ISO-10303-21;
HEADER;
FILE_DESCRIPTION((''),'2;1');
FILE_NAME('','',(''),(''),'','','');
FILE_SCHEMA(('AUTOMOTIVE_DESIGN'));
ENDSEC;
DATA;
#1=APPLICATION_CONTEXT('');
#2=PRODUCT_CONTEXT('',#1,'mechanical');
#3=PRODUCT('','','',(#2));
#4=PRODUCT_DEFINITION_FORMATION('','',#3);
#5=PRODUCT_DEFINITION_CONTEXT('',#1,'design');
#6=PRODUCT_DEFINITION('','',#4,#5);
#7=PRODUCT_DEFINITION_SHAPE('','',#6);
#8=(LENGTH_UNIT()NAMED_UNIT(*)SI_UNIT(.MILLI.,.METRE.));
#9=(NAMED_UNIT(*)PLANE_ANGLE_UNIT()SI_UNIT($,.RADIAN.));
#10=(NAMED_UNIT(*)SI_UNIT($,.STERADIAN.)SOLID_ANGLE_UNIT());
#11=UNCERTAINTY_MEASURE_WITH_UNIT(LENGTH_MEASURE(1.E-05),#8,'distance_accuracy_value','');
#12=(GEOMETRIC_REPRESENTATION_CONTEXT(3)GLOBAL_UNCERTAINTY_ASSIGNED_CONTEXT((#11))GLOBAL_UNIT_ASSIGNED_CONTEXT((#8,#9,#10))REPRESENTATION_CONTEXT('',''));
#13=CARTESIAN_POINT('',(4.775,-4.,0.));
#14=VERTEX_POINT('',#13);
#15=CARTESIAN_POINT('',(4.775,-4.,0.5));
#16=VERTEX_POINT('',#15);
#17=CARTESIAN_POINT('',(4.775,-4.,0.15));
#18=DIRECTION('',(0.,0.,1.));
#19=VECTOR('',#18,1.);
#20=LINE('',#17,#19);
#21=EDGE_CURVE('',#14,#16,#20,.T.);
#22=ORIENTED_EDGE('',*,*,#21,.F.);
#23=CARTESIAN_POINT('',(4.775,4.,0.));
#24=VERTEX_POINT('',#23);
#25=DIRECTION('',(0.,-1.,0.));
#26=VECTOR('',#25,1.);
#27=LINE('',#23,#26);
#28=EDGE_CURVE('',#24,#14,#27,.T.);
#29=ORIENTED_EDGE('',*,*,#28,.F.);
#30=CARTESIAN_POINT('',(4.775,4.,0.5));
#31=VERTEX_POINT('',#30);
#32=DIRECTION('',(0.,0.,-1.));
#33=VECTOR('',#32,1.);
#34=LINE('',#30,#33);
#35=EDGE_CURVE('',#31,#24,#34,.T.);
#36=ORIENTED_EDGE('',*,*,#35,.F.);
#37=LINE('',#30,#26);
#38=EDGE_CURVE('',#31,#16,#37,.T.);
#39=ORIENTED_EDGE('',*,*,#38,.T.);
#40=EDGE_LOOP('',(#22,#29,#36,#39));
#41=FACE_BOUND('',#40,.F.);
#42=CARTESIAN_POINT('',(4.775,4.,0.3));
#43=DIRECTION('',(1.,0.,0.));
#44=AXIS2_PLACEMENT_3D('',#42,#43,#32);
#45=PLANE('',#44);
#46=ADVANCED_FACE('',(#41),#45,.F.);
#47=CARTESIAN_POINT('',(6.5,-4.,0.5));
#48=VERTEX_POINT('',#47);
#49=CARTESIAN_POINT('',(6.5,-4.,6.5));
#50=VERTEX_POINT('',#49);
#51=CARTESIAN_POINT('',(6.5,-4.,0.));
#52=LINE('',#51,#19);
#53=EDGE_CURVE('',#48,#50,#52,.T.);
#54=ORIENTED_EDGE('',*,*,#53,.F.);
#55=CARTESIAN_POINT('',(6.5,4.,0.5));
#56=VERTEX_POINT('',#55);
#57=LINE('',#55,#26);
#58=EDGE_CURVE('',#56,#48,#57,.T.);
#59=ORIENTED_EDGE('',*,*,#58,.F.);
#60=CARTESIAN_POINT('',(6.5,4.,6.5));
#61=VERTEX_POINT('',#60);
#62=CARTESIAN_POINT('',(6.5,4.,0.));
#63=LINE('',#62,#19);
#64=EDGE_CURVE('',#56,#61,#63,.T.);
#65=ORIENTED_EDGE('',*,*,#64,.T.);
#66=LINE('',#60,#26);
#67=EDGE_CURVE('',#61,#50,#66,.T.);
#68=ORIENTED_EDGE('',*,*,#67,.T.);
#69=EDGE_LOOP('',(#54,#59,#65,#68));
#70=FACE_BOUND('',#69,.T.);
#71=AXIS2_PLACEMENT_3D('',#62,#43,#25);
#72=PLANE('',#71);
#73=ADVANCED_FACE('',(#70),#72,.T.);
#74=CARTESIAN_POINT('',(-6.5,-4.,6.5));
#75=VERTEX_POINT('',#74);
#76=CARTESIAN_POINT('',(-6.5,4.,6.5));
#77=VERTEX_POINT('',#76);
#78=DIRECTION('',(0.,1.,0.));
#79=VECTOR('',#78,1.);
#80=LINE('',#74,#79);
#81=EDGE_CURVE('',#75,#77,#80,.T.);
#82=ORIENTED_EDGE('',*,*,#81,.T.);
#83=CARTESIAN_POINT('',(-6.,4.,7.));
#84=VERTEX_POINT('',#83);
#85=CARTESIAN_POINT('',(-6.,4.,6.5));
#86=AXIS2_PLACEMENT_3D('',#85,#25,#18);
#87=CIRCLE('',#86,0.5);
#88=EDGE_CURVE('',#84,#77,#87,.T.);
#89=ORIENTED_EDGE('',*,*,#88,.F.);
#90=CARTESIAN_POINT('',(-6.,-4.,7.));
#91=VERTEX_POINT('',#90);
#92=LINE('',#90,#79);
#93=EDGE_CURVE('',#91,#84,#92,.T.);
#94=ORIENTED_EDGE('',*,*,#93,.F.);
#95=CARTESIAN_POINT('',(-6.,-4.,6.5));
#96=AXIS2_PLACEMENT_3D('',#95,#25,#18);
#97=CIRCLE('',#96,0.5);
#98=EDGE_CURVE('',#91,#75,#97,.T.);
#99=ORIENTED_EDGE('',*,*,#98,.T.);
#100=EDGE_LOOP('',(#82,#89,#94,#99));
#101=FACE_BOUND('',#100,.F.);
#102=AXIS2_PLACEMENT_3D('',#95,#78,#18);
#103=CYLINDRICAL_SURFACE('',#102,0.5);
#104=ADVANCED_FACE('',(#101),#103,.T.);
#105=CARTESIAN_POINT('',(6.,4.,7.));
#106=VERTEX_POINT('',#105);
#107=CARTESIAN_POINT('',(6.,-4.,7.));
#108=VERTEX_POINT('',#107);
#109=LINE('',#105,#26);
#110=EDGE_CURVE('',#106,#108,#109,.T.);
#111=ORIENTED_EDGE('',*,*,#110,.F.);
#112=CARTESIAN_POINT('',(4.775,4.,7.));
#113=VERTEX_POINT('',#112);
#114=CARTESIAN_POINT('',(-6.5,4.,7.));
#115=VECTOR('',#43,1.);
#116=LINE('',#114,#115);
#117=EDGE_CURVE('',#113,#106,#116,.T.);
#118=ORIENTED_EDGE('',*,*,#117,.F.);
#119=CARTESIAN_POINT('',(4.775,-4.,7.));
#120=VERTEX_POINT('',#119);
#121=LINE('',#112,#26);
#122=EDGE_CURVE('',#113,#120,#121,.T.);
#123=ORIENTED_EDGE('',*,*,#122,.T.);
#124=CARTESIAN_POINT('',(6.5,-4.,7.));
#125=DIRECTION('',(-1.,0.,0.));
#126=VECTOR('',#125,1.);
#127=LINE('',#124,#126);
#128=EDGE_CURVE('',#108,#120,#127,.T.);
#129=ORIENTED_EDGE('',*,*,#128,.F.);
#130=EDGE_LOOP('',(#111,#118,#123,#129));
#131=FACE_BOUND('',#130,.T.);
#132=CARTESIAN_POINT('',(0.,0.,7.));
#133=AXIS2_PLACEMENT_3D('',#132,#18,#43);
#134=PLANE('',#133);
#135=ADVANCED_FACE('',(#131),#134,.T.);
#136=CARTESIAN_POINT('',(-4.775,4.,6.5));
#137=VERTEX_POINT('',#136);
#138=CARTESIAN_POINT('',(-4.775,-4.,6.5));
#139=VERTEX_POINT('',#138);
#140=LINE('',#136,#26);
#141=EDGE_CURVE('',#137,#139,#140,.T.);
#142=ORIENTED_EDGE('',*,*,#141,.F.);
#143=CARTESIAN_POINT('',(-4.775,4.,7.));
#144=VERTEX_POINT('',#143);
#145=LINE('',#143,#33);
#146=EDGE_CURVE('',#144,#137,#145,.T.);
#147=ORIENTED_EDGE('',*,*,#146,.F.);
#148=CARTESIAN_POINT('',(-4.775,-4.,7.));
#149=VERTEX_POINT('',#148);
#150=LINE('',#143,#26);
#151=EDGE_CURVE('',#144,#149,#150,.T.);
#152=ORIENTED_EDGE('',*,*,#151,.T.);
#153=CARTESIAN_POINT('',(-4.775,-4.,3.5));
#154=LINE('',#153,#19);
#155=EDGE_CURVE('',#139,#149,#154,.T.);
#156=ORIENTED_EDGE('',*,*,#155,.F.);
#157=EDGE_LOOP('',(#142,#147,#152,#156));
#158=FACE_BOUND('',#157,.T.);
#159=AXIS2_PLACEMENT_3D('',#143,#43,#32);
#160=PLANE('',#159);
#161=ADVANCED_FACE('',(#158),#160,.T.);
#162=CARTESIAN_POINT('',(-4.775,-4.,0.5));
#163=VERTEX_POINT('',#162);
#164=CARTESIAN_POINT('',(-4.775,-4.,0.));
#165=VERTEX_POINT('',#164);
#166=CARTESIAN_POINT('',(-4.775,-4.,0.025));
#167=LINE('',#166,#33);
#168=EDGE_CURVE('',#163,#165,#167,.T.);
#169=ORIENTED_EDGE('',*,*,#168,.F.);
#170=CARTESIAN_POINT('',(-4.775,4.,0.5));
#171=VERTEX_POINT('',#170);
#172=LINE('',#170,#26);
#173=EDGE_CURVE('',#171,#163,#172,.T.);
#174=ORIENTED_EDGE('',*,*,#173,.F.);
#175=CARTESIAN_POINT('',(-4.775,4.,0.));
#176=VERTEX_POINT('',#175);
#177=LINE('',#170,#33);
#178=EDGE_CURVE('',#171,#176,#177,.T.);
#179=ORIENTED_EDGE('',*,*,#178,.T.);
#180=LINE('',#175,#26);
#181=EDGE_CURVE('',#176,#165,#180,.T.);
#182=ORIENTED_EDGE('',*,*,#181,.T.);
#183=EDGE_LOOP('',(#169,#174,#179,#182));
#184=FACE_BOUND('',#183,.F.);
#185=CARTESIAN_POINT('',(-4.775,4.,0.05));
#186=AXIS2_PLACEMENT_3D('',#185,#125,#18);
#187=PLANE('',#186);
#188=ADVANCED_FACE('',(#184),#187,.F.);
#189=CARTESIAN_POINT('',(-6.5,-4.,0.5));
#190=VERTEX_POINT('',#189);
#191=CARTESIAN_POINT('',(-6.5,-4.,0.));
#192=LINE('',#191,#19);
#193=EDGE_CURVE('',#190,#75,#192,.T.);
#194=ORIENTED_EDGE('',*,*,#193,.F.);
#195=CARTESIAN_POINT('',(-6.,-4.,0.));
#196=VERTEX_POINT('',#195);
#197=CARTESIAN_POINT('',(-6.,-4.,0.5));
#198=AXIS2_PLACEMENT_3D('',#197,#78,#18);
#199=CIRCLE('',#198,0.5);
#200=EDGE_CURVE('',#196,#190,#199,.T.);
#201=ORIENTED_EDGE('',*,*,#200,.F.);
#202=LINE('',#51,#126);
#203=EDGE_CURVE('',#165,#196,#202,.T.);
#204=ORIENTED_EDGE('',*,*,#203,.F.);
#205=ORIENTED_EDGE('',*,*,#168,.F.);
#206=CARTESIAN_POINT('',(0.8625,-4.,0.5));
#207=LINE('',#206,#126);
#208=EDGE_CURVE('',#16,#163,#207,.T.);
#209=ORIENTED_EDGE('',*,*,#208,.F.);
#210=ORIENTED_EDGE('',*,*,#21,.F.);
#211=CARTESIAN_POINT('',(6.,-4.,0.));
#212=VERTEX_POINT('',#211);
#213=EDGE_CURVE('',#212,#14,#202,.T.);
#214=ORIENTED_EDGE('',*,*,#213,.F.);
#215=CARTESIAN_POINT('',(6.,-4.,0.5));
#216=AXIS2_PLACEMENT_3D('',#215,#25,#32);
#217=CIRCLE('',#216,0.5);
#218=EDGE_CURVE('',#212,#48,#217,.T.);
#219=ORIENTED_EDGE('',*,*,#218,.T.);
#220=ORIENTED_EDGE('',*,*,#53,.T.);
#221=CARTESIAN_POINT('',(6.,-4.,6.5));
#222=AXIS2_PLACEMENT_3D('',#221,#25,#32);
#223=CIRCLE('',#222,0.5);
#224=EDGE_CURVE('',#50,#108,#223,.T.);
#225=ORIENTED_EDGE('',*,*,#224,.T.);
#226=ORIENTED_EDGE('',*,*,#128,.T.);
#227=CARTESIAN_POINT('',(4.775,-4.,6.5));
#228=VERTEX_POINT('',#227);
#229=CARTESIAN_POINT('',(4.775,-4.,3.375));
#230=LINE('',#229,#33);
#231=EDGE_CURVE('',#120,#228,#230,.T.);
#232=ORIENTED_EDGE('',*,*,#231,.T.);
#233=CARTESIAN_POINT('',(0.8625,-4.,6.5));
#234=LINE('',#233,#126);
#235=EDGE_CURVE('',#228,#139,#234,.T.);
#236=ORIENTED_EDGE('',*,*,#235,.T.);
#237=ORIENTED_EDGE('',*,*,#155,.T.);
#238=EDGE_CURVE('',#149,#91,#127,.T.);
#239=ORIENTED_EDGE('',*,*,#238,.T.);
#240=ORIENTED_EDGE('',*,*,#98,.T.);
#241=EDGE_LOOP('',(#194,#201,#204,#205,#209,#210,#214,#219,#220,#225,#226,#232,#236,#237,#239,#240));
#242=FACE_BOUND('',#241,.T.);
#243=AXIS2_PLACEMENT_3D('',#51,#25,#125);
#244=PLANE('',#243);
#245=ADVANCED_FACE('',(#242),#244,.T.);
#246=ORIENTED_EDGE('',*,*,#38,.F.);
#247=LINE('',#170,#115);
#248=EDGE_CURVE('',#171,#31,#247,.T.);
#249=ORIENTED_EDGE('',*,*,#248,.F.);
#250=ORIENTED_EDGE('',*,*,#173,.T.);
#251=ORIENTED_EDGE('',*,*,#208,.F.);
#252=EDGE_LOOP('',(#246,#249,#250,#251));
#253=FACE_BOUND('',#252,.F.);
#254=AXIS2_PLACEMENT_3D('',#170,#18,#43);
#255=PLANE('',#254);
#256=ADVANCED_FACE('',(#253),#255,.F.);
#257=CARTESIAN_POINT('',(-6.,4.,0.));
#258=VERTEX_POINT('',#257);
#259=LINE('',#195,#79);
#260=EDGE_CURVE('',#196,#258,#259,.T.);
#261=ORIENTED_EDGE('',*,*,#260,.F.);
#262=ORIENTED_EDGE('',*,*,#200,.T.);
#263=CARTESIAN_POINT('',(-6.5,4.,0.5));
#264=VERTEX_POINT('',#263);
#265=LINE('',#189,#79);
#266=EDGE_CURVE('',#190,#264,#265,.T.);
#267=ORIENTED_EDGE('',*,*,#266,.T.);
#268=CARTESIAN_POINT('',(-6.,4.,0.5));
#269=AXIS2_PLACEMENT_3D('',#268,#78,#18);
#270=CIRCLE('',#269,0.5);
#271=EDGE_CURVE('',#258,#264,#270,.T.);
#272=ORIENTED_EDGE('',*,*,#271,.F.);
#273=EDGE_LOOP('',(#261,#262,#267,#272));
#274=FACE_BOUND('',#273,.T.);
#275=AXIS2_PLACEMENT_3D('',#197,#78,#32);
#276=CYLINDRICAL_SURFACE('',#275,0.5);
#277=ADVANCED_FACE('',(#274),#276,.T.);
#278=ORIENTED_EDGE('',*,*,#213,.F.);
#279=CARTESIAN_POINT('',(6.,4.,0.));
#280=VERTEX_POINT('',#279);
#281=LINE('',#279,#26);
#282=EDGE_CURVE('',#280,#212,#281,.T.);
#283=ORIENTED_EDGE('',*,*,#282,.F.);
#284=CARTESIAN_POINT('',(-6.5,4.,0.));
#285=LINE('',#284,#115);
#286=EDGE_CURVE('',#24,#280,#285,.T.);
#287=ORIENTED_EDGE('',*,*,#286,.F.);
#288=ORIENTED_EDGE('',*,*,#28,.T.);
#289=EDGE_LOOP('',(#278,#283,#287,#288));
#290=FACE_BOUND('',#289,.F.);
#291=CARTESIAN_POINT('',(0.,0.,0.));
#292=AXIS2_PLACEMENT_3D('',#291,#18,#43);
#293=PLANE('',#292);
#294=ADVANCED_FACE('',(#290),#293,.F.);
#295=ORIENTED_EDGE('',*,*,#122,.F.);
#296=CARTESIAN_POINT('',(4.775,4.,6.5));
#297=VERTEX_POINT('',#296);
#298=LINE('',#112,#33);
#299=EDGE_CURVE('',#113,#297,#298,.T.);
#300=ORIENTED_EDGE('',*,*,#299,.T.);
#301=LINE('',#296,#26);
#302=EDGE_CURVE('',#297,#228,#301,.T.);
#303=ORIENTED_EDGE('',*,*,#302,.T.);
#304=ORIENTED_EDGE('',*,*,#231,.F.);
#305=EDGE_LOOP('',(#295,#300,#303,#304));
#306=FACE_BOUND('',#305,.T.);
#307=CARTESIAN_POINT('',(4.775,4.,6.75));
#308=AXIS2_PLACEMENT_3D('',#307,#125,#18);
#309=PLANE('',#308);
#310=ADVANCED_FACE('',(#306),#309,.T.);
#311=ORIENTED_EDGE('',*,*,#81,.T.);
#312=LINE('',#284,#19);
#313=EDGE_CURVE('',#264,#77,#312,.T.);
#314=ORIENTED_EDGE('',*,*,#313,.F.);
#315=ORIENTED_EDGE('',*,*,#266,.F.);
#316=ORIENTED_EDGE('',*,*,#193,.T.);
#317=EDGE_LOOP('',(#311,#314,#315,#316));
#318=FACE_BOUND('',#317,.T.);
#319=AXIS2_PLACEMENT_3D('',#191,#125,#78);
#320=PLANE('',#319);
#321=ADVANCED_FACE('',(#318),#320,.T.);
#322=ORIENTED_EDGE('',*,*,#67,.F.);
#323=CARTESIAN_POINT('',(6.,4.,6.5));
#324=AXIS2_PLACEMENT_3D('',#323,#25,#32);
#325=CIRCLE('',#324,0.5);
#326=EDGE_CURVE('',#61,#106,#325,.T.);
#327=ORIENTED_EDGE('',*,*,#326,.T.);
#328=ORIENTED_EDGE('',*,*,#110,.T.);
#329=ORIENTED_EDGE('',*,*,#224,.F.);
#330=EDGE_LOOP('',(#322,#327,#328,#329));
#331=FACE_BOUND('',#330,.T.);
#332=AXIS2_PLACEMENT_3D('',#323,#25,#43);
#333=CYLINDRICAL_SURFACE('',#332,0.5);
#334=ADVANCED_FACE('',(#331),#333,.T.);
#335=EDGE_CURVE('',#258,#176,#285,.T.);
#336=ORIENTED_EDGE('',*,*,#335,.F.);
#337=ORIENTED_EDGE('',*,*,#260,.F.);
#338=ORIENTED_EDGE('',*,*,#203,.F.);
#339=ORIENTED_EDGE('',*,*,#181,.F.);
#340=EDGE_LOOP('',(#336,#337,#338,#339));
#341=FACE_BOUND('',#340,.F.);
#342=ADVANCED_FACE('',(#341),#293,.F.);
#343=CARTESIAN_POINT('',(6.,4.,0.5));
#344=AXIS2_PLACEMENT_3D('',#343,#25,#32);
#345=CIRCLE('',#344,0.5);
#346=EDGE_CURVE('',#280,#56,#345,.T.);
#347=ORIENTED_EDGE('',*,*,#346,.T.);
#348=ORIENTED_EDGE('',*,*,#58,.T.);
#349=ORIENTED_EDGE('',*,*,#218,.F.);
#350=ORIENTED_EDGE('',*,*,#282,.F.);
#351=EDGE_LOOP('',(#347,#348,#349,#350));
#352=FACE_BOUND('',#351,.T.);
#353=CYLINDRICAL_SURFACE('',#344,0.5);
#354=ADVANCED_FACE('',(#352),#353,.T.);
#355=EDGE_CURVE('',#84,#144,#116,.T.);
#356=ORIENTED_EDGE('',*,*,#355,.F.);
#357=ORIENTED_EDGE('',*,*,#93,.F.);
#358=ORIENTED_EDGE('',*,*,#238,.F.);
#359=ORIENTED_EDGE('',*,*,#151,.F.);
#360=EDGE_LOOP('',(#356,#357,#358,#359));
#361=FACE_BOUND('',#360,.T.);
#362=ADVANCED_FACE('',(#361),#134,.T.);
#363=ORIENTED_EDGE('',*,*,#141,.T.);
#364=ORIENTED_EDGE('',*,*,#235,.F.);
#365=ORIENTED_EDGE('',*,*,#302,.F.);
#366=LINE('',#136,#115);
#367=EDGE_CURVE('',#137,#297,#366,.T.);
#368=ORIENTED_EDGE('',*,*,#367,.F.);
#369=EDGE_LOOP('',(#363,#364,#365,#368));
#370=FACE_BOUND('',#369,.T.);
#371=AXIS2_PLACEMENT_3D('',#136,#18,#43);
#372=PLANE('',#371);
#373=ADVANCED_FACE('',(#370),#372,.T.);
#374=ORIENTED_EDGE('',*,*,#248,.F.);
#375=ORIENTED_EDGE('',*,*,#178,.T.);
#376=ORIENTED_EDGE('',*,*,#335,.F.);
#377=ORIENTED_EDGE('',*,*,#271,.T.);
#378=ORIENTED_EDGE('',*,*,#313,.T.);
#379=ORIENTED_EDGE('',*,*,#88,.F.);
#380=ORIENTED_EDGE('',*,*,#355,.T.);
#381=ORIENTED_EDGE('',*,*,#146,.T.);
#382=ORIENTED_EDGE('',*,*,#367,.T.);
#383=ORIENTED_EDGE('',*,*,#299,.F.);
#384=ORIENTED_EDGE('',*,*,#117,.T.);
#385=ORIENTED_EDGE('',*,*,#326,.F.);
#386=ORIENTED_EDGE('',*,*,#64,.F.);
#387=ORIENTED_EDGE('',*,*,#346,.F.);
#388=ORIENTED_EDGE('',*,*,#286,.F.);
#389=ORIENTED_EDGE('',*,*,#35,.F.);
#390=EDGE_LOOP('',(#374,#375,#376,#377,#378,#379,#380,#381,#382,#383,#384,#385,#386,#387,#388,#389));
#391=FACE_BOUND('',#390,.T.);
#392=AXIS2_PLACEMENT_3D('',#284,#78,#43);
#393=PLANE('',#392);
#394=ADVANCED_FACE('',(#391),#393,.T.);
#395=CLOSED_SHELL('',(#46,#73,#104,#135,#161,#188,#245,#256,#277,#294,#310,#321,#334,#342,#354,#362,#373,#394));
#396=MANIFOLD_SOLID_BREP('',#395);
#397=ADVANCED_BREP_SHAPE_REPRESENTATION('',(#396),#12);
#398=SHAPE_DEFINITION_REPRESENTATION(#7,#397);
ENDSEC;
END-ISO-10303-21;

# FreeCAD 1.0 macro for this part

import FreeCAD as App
import Part
import Sketcher

V = App.Vector


def edges_at(feature, points):
    """Names of the edges that pass closest to the given points."""
    edges = feature.Shape.Edges
    near = lambda p: min(range(len(edges)), key=lambda i: edges[i].distToShape(Part.Vertex(*p))[0])
    return sorted({f"Edge{near(p) + 1}" for p in points})

doc = App.newDocument("Part")
params = doc.addObject("Spreadsheet::Sheet", "Params")
for row, (alias, value) in enumerate([
    ("sketch1_width", "13 mm"),
    ("sketch1_height", "8 mm"),
    ("pad1_length", "7 mm"),
    ("sketch2_height", "0.5 mm"),
    ("sketch2_width", "9.55 mm"),
    ("fillet_radius", "0.5 mm"),
], start=1):
    params.set(f"A{row}", alias)
    params.set(f"B{row}", "=" + value)
    params.setAlias(f"B{row}", alias)

body = doc.addObject("PartDesign::Body", "Body")

# Sketch on XY plane
sketch1 = body.newObject("Sketcher::SketchObject", "Sketch")
sketch1.AttachmentSupport = (doc.getObject("XY_Plane"), [""])
sketch1.MapMode = "FlatFace"
sketch1.addGeometry([
    Part.LineSegment(V(6, 4, 0), V(-6, 4, 0)),
    Part.LineSegment(V(-6, 4, 0), V(-6, -4, 0)),
    Part.LineSegment(V(-6, -4, 0), V(6, -4, 0)),
    Part.LineSegment(V(6, -4, 0), V(6, 4, 0)),
], False)
sketch1.addConstraint([
    Sketcher.Constraint("Coincident", 0, 2, 1, 1),
    Sketcher.Constraint("Coincident", 1, 2, 2, 1),
    Sketcher.Constraint("Coincident", 2, 2, 3, 1),
    Sketcher.Constraint("Coincident", 3, 2, 0, 1),
    Sketcher.Constraint("Horizontal", 0),
    Sketcher.Constraint("Vertical", 1),
    Sketcher.Constraint("Horizontal", 2),
    Sketcher.Constraint("Vertical", 3),
    Sketcher.Constraint("Symmetric", 0, 2, 2, 2, -1, 1),
    Sketcher.Constraint("DistanceX", 0, 2, 0, 1, 13.0),
    Sketcher.Constraint("DistanceY", 1, 2, 1, 1, 8.0),
])
sketch1.setExpression("Constraints[9]", "Params.sketch1_width")
sketch1.setExpression("Constraints[10]", "Params.sketch1_height")
pad1 = body.newObject("PartDesign::Pad", "Pad")
pad1.Profile = sketch1
pad1.setExpression("Length", "Params.pad1_length")

# Sketch on XZ plane
sketch2 = body.newObject("Sketcher::SketchObject", "Sketch001")
sketch2.AttachmentSupport = (doc.getObject("XZ_Plane"), [""])
sketch2.MapMode = "FlatFace"
sketch2.AttachmentOffset = App.Placement(V(0, 0, -4), App.Rotation())
sketch2.addGeometry([
    Part.LineSegment(V(-4.8, 7, 0), V(4.8, 7, 0)),  # 0
    Part.LineSegment(V(4.8, 7, 0), V(4.8, 6.5, 0)),  # 1
    Part.LineSegment(V(4.8, 6.5, 0), V(-4.8, 6.5, 0)),  # 2
    Part.LineSegment(V(-4.8, 6.5, 0), V(-4.8, 7, 0)),  # 3
    Part.LineSegment(V(-4.8, 0.5, 0), V(4.8, 0.5, 0)),  # 4
    Part.LineSegment(V(4.8, 0.5, 0), V(4.8, 0, 0)),  # 5
    Part.LineSegment(V(4.8, 0, 0), V(-4.8, 0, 0)),  # 6
    Part.LineSegment(V(-4.8, 0, 0), V(-4.8, 0.5, 0)),  # 7
], False)
sketch2.addConstraint([
    Sketcher.Constraint("Coincident", 0, 2, 1, 1),
    Sketcher.Constraint("Coincident", 1, 2, 2, 1),
    Sketcher.Constraint("Coincident", 2, 2, 3, 1),
    Sketcher.Constraint("Coincident", 3, 2, 0, 1),
    Sketcher.Constraint("Coincident", 4, 2, 5, 1),
    Sketcher.Constraint("Coincident", 5, 2, 6, 1),
    Sketcher.Constraint("Coincident", 6, 2, 7, 1),
    Sketcher.Constraint("Coincident", 7, 2, 4, 1),
    Sketcher.Constraint("Horizontal", 0),
    Sketcher.Constraint("Vertical", 1),
    Sketcher.Constraint("Horizontal", 2),
    Sketcher.Constraint("Vertical", 3),
    Sketcher.Constraint("Horizontal", 4),
    Sketcher.Constraint("Vertical", 5),
    Sketcher.Constraint("Horizontal", 6),
    Sketcher.Constraint("Vertical", 7),
    Sketcher.Constraint("Symmetric", 5, 2, 6, 2, -1, 1),
    Sketcher.Constraint("Vertical", 1, 2, 4, 2),
    Sketcher.Constraint("Vertical", 3, 2, 6, 2),
    Sketcher.Constraint("Equal", 3, 5),
    Sketcher.Constraint("DistanceY", 1, 2, 1, 1, 0.5),
    Sketcher.Constraint("DistanceX", 0, 1, 0, 2, 9.55),
    Sketcher.Constraint("DistanceY", -1, 1, 0, 2, 7.0),
])
sketch2.setExpression("Constraints[20]", "Params.sketch2_height")
sketch2.setExpression("Constraints[21]", "Params.sketch2_width")
pocket1 = body.newObject("PartDesign::Pocket", "Pocket")
pocket1.Profile = sketch2
pocket1.Type = "ThroughAll"
pocket1.Reversed = True
doc.recompute()

fillet = body.newObject("PartDesign::Fillet", "Fillet")
fillet.Base = (pocket1, edges_at(pocket1, [
    (6.5, 0, 7),
    (6.5, 0, 0),
    (-6.5, 0, 0),
    (-6.5, 0, 7),
]))
fillet.setExpression("Radius", "Params.fillet_radius")

doc.recompute()
